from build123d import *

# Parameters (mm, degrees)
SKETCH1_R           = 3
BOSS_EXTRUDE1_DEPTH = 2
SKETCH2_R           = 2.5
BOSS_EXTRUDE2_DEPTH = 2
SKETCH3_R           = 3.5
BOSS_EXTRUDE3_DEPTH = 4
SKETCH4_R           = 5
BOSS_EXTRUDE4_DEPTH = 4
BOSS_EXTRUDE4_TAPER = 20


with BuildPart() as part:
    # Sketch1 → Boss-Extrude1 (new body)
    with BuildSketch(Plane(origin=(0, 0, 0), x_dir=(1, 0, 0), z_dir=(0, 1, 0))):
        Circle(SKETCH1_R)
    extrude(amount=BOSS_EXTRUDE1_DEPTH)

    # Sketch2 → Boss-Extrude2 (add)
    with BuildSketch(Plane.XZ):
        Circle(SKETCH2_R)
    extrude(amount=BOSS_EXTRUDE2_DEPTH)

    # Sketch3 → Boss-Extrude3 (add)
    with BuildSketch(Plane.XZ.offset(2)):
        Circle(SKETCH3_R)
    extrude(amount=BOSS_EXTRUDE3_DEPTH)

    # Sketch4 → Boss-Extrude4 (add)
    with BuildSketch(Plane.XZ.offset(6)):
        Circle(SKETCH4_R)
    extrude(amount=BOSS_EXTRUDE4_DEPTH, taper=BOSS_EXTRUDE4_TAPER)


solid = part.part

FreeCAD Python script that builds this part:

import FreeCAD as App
import Part
import Sketcher
from FreeCAD import Vector

doc = App.newDocument("Part")
body = doc.addObject("PartDesign::Body", "Body")

# Sketch on XZ plane
sketch1 = body.newObject("Sketcher::SketchObject", "Sketch")
sketch1.AttachmentSupport = (doc.getObject("XZ_Plane"), [""])
sketch1.MapMode = "FlatFace"
sketch1.addGeometry(Part.Circle(Vector(0, 0, 0), Vector(0, 0, 1), 3), False)
sketch1.addConstraint([
    Sketcher.Constraint("Coincident", 0, 3, -1, 1),
    Sketcher.Constraint("Diameter", 0, 6.0),
])
pad1 = body.newObject("PartDesign::Pad", "Pad")
pad1.Profile = sketch1
pad1.Length = 2
pad1.Reversed = True

# Sketch on XZ plane
sketch2 = body.newObject("Sketcher::SketchObject", "Sketch001")
sketch2.AttachmentSupport = (doc.getObject("XZ_Plane"), [""])
sketch2.MapMode = "FlatFace"
sketch2.addGeometry(Part.Circle(Vector(0, 0, 0), Vector(0, 0, 1), 2.5), False)
sketch2.addConstraint([
    Sketcher.Constraint("Coincident", 0, 3, -1, 1),
    Sketcher.Constraint("Diameter", 0, 5.0),
])
pad2 = body.newObject("PartDesign::Pad", "Pad001")
pad2.Profile = sketch2
pad2.Length = 2

# Sketch on XZ plane
sketch3 = body.newObject("Sketcher::SketchObject", "Sketch002")
sketch3.AttachmentSupport = (doc.getObject("XZ_Plane"), [""])
sketch3.MapMode = "FlatFace"
sketch3.AttachmentOffset = App.Placement(Vector(0, 0, 2), App.Rotation())
sketch3.addGeometry(Part.Circle(Vector(0, 0, 0), Vector(0, 0, 1), 3.5), False)
sketch3.addConstraint([
    Sketcher.Constraint("Coincident", 0, 3, -1, 1),
    Sketcher.Constraint("Diameter", 0, 7.0),
])
pad3 = body.newObject("PartDesign::Pad", "Pad002")
pad3.Profile = sketch3
pad3.Length = 4

# Sketch on XZ plane
sketch4 = body.newObject("Sketcher::SketchObject", "Sketch003")
sketch4.AttachmentSupport = (doc.getObject("XZ_Plane"), [""])
sketch4.MapMode = "FlatFace"
sketch4.AttachmentOffset = App.Placement(Vector(0, 0, 6), App.Rotation())
sketch4.addGeometry(Part.Circle(Vector(0, 0, 0), Vector(0, 0, 1), 5), False)
sketch4.addConstraint([
    Sketcher.Constraint("Coincident", 0, 3, -1, 1),
    Sketcher.Constraint("Diameter", 0, 10.0),
])
pad4 = body.newObject("PartDesign::Pad", "Pad003")
pad4.Profile = sketch4
pad4.Length = 4
pad4.TaperAngle = -20

doc.recompute()
